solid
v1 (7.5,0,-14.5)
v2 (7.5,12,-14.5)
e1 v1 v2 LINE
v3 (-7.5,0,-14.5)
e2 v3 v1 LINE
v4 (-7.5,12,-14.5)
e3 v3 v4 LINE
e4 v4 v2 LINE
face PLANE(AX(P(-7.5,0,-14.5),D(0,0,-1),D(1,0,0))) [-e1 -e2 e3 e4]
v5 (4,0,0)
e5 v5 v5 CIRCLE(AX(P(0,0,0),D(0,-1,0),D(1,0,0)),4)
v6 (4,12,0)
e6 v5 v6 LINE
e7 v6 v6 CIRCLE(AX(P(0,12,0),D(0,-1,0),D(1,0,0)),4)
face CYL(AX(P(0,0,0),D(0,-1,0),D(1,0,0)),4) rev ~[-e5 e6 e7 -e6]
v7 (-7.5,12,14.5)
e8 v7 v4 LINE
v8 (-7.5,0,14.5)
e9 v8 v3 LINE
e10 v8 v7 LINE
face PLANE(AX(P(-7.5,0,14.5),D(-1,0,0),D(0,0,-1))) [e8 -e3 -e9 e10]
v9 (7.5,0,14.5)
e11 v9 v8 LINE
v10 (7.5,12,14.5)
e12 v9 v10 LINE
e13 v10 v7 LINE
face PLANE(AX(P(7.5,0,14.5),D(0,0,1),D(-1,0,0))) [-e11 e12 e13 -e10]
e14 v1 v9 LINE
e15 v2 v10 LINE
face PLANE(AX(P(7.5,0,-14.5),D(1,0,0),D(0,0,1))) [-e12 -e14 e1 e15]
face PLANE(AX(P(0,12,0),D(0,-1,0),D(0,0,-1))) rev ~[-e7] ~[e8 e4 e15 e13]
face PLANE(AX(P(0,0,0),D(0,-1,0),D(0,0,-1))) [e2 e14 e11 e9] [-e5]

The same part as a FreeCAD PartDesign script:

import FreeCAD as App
import Part
import Sketcher
from FreeCAD import Vector
Q = App.Units.Quantity


def add_polygon(sketch, points):
    """Adds a closed chain of lines whose ends are joined by coincident constraints."""
    first, n = sketch.GeometryCount, len(points)
    for a, b in zip(points, points[1:] + points[:1]):
        sketch.addGeometry(Part.LineSegment(App.Vector(*a, 0), App.Vector(*b, 0)), False)
    for i in range(n):
        sketch.addConstraint(Sketcher.Constraint("Coincident", first + i, 2, first + (i + 1) % n, 1))

doc = App.newDocument("Part")
body = doc.addObject("PartDesign::Body", "Body")

sketch1 = body.newObject("Sketcher::SketchObject", "Sketch")
sketch1.AttachmentSupport = (doc.getObject("XZ_Plane"), [""])
sketch1.MapMode = "FlatFace"
add_polygon(sketch1, [(7.5, -14.5), (7.5, 14.5), (-7.5, 14.5), (-7.5, -14.5)])
sketch1.addGeometry(Part.Circle(Vector(0, 0, 0), Vector(0, 0, 1), 4), False)
sketch1.addConstraint([
    Sketcher.Constraint("Vertical", 0),
    Sketcher.Constraint("Horizontal", 1),
    Sketcher.Constraint("Vertical", 2),
    Sketcher.Constraint("Horizontal", 3),
    Sketcher.Constraint("Coincident", 4, 3, -1, 1),
    Sketcher.Constraint("Symmetric", 0, 2, 2, 2, -1, 1),
    Sketcher.Constraint("Diameter", 4, Q("8 mm")),
    Sketcher.Constraint("DistanceX", 1, 2, 1, 1, Q("15 mm")),
    Sketcher.Constraint("DistanceY", 0, 1, 0, 2, Q("29 mm")),
])
pad1 = body.newObject("PartDesign::Pad", "Pad")
pad1.Profile = sketch1
pad1.Length = 12
pad1.Reversed = True

doc.recompute()
